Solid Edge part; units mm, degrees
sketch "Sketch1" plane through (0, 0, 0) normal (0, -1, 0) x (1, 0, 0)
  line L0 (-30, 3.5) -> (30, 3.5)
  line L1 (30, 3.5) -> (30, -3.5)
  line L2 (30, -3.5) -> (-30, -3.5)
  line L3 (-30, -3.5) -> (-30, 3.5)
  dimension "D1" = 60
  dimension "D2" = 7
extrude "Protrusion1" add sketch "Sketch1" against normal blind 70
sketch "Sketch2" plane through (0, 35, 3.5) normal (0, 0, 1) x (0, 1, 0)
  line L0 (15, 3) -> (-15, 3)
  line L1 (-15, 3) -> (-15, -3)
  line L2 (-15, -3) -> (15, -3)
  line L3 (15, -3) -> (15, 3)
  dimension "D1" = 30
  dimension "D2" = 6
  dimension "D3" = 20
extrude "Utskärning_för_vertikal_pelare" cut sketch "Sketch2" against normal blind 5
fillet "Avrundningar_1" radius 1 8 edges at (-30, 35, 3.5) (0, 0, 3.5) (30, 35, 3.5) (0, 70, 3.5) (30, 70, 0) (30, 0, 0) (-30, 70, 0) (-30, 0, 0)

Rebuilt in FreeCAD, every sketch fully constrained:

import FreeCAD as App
import Part
import Sketcher

V = App.Vector


def edges_at(feature, points):
    """Names of the edges that pass closest to the given points."""
    edges = feature.Shape.Edges
    near = lambda p: min(range(len(edges)), key=lambda i: edges[i].distToShape(Part.Vertex(*p))[0])
    return sorted({f"Edge{near(p) + 1}" for p in points})

doc = App.newDocument("Part")
body = doc.addObject("PartDesign::Body", "Body")

sketch1 = body.newObject("Sketcher::SketchObject", "Sketch")
sketch1.AttachmentSupport = (doc.getObject("XZ_Plane"), [""])
sketch1.MapMode = "FlatFace"
sketch1.addGeometry(Part.LineSegment(V(30, 3.5, 0), V(-30, 3.5, 0)), False)
sketch1.addGeometry(Part.LineSegment(V(-30, 3.5, 0), V(-30, -3.5, 0)), False)
sketch1.addGeometry(Part.LineSegment(V(-30, -3.5, 0), V(30, -3.5, 0)), False)
sketch1.addGeometry(Part.LineSegment(V(30, -3.5, 0), V(30, 3.5, 0)), False)
sketch1.addConstraint(Sketcher.Constraint("Coincident", 0, 2, 1, 1))
sketch1.addConstraint(Sketcher.Constraint("Coincident", 1, 2, 2, 1))
sketch1.addConstraint(Sketcher.Constraint("Coincident", 2, 2, 3, 1))
sketch1.addConstraint(Sketcher.Constraint("Coincident", 3, 2, 0, 1))
sketch1.addConstraint(Sketcher.Constraint("Horizontal", 0))
sketch1.addConstraint(Sketcher.Constraint("Vertical", 1))
sketch1.addConstraint(Sketcher.Constraint("Horizontal", 2))
sketch1.addConstraint(Sketcher.Constraint("Vertical", 3))
sketch1.addConstraint(Sketcher.Constraint("Symmetric", 0, 2, 2, 2, -1, 1))
sketch1.addConstraint(Sketcher.Constraint("DistanceX", 0, 2, -1, 1, 30.0))
sketch1.addConstraint(Sketcher.Constraint("DistanceY", 1, 2, 1, 1, 7.0))
pad1 = body.newObject("PartDesign::Pad", "Pad")
pad1.Profile = sketch1
pad1.Length = 70
pad1.Reversed = True

sketch2 = body.newObject("Sketcher::SketchObject", "Sketch001")
sketch2.AttachmentSupport = (doc.getObject("XY_Plane"), [""])
sketch2.MapMode = "FlatFace"
sketch2.AttachmentOffset = App.Placement(V(0, 0, 3.5), App.Rotation())
sketch2.addGeometry(Part.LineSegment(V(3, 50, 0), V(-3, 50, 0)), False)
sketch2.addGeometry(Part.LineSegment(V(-3, 50, 0), V(-3, 20, 0)), False)
sketch2.addGeometry(Part.LineSegment(V(-3, 20, 0), V(3, 20, 0)), False)
sketch2.addGeometry(Part.LineSegment(V(3, 20, 0), V(3, 50, 0)), False)
sketch2.addConstraint(Sketcher.Constraint("Coincident", 0, 2, 1, 1))
sketch2.addConstraint(Sketcher.Constraint("Coincident", 1, 2, 2, 1))
sketch2.addConstraint(Sketcher.Constraint("Coincident", 2, 2, 3, 1))
sketch2.addConstraint(Sketcher.Constraint("Coincident", 3, 2, 0, 1))
sketch2.addConstraint(Sketcher.Constraint("Horizontal", 0))
sketch2.addConstraint(Sketcher.Constraint("Vertical", 1))
sketch2.addConstraint(Sketcher.Constraint("Horizontal", 2))
sketch2.addConstraint(Sketcher.Constraint("Vertical", 3))
sketch2.addConstraint(Sketcher.Constraint("DistanceX", 0, 2, 0, 1, 6.0))
sketch2.addConstraint(Sketcher.Constraint("DistanceY", 1, 2, 1, 1, 30.0))
sketch2.addConstraint(Sketcher.Constraint("DistanceX", 0, 2, -1, 1, 3.0))
sketch2.addConstraint(Sketcher.Constraint("DistanceY", -1, 1, 0, 2, 50.0))
pocket1 = body.newObject("PartDesign::Pocket", "Pocket")
pocket1.Profile = sketch2
pocket1.Length = 5
doc.recompute()

fillet = body.newObject("PartDesign::Fillet", "Fillet")
fillet.Base = (pocket1, edges_at(pocket1, [
    (-30, 35, 3.5),
    (0, 0, 3.5),
    (30, 35, 3.5),
    (0, 70, 3.5),
    (30, 70, 0),
    (30, 0, 0),
    (-30, 70, 0),
    (-30, 0, 0),
]))
fillet.Radius = 1

doc.recompute()
